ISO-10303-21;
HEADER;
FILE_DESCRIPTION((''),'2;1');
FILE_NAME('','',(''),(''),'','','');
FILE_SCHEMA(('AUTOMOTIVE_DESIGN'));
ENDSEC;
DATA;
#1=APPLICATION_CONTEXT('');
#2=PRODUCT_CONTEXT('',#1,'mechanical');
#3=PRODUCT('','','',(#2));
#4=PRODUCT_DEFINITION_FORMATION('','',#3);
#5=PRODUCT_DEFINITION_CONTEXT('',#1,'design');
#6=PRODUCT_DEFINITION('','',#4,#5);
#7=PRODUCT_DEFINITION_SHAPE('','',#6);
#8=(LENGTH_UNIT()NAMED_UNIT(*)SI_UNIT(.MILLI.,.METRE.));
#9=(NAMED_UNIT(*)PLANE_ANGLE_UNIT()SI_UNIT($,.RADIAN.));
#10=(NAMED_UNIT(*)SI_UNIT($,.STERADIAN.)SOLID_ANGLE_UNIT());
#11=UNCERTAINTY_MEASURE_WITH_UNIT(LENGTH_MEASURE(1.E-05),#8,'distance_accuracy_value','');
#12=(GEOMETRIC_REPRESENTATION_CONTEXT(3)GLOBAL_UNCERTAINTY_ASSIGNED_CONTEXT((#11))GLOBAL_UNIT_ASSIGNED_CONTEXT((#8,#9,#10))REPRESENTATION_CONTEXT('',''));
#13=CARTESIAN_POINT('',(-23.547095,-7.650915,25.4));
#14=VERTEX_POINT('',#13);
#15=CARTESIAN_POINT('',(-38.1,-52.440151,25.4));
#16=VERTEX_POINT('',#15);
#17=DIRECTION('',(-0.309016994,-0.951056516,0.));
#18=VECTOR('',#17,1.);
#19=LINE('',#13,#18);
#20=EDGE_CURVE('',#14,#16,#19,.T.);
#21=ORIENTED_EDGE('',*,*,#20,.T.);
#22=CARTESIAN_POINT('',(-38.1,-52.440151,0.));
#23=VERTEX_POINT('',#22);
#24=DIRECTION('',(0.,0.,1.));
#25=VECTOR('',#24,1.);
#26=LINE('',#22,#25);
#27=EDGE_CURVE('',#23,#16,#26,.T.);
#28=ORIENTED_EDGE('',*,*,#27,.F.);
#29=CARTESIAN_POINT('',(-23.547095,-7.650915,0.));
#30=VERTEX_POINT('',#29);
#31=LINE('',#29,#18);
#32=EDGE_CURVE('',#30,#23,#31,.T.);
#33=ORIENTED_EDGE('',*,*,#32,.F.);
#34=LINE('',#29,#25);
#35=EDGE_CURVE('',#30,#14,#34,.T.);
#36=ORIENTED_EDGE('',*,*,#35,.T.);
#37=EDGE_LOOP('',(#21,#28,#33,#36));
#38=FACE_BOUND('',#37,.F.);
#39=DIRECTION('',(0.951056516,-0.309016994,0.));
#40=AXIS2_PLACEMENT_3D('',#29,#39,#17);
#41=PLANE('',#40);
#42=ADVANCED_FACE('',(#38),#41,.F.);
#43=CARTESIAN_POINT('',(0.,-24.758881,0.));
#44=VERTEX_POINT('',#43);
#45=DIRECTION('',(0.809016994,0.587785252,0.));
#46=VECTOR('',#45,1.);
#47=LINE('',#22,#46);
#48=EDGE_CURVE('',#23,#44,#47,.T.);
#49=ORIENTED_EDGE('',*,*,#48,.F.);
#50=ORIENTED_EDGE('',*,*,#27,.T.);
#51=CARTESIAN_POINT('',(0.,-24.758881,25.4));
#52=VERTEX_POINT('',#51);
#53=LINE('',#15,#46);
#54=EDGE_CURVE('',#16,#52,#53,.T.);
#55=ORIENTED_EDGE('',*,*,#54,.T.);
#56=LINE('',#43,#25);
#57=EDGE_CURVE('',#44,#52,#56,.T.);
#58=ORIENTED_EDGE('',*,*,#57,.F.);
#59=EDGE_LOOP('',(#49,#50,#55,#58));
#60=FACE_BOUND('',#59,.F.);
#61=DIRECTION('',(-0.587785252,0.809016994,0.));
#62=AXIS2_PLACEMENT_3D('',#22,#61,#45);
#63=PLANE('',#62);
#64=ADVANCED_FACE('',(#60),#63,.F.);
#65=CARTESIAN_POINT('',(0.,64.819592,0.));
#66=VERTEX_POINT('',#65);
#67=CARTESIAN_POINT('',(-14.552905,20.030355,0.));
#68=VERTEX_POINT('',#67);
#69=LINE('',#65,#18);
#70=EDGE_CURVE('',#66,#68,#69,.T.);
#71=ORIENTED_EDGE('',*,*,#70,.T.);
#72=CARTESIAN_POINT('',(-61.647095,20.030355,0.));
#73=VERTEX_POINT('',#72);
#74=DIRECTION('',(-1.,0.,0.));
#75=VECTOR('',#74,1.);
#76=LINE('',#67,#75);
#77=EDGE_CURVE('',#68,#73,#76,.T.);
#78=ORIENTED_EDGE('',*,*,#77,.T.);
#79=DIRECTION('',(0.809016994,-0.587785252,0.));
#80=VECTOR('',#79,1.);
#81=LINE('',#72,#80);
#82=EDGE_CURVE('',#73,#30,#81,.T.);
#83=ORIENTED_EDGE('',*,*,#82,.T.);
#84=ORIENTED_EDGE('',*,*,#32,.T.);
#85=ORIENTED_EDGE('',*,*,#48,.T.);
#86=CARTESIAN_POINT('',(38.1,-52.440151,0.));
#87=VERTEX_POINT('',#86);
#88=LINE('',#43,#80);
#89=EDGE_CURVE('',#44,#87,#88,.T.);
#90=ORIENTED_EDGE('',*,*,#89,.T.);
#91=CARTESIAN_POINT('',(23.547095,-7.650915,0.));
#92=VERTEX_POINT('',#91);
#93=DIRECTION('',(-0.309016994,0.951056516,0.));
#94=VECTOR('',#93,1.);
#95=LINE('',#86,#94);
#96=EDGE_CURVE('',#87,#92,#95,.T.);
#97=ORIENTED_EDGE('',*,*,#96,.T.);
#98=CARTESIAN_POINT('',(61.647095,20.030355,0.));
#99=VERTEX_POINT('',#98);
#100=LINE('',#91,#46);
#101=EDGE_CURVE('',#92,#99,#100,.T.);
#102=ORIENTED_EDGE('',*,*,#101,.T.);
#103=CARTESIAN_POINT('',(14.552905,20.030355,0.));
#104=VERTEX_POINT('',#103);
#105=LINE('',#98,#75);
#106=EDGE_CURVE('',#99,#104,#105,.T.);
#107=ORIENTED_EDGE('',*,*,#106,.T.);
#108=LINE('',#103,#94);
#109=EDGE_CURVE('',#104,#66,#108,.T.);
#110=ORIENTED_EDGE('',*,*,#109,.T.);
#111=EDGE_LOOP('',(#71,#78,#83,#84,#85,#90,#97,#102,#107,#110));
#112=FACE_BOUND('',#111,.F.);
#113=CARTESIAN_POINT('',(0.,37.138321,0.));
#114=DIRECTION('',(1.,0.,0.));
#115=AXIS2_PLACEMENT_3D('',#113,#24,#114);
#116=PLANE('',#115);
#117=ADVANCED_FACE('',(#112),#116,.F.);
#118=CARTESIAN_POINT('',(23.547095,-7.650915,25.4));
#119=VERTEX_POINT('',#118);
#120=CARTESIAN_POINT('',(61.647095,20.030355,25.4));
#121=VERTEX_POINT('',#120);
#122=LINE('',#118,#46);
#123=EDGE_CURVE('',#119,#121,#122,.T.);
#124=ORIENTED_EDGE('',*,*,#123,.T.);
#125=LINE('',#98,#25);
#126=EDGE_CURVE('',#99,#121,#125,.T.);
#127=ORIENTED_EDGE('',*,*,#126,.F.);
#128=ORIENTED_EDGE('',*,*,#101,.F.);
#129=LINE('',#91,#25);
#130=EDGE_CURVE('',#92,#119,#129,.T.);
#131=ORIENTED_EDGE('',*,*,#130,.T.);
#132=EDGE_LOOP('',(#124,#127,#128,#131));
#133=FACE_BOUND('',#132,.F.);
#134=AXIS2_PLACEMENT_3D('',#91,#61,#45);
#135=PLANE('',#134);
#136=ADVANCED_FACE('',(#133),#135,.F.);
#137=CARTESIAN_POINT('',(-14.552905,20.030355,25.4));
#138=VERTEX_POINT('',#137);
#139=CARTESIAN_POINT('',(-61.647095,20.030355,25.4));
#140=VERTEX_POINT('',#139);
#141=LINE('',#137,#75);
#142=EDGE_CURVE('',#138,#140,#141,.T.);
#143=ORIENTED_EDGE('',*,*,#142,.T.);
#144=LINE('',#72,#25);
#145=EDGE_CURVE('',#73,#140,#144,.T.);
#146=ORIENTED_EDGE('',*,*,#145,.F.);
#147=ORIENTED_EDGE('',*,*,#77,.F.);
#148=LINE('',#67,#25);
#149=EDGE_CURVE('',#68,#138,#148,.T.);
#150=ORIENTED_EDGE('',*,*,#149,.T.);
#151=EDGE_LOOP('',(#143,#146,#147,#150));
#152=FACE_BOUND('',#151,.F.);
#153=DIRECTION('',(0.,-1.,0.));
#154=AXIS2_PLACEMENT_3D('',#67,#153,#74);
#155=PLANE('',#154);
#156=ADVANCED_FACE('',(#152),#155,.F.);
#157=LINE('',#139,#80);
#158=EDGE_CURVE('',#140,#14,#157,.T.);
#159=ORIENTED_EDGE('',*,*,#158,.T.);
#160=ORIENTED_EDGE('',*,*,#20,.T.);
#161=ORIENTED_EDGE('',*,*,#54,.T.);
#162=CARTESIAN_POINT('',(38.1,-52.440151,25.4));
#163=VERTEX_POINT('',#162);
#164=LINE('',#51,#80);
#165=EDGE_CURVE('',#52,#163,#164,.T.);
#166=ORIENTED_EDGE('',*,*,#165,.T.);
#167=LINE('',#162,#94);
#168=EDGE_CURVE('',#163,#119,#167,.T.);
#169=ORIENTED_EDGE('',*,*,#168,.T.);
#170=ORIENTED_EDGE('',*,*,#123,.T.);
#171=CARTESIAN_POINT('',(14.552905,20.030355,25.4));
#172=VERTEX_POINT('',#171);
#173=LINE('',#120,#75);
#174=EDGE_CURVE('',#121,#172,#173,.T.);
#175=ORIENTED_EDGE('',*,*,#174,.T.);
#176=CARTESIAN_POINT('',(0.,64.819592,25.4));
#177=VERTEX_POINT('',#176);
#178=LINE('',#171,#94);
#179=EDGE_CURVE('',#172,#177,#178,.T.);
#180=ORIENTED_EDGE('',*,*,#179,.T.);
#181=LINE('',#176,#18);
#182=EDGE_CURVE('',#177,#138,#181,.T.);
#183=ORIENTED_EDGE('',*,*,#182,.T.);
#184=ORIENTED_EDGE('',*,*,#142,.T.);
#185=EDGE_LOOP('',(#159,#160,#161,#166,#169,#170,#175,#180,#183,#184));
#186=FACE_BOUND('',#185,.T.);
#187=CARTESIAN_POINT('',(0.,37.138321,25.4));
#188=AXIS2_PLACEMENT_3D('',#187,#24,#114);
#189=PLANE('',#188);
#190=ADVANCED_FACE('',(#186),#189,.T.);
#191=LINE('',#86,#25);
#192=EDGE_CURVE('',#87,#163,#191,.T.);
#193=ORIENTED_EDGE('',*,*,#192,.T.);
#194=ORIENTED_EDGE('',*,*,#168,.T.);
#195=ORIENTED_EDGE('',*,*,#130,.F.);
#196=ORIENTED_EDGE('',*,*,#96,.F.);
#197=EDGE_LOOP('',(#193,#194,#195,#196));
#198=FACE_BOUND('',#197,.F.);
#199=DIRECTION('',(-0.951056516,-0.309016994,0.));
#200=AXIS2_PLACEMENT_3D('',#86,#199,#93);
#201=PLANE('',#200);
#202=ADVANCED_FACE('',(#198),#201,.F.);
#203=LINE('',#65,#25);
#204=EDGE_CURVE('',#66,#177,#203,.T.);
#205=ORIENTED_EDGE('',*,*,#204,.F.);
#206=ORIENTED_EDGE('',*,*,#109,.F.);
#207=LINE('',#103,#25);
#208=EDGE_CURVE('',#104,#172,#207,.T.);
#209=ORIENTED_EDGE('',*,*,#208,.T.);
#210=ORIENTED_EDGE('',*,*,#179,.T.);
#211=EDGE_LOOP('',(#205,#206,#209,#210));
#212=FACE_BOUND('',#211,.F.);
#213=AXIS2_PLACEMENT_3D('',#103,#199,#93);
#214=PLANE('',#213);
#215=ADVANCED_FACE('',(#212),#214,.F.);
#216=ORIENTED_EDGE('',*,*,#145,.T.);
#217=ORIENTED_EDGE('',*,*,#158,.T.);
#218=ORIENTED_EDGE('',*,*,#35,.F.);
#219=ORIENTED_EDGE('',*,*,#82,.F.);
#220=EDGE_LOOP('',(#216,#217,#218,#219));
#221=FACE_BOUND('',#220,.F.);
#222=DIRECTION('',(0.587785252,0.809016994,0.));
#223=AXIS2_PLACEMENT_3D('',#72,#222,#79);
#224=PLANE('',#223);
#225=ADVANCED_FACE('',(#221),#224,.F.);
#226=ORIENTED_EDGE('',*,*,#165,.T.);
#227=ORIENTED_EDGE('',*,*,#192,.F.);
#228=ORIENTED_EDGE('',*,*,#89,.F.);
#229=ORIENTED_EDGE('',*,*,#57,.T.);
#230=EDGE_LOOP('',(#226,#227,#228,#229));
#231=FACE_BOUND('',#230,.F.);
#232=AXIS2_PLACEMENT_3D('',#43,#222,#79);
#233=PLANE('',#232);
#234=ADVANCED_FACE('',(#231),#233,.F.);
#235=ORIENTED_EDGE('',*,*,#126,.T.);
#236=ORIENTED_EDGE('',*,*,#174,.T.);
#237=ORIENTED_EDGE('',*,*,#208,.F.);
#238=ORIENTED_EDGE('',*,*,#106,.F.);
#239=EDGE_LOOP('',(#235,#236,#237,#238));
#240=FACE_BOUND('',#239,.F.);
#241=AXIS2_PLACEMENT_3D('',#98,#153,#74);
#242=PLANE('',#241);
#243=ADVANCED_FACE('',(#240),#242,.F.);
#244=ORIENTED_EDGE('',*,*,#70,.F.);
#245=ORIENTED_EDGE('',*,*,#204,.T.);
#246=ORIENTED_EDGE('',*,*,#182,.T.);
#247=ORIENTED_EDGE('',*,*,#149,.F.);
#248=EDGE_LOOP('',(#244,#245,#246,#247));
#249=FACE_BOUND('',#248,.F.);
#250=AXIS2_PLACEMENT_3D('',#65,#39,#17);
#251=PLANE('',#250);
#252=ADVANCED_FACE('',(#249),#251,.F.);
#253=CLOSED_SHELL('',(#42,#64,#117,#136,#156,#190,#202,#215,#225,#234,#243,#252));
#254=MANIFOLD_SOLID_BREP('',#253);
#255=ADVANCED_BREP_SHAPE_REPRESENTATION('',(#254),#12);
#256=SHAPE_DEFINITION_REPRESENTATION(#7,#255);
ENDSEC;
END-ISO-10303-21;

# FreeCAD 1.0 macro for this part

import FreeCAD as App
import Part
import Sketcher

V = App.Vector
Q = App.Units.Quantity


def add_polygon(sketch, points):
    """Adds a closed chain of lines whose ends are joined by coincident constraints."""
    first, n = sketch.GeometryCount, len(points)
    for a, b in zip(points, points[1:] + points[:1]):
        sketch.addGeometry(Part.LineSegment(App.Vector(*a, 0), App.Vector(*b, 0)), False)
    for i in range(n):
        sketch.addConstraint(Sketcher.Constraint("Coincident", first + i, 2, first + (i + 1) % n, 1))

doc = App.newDocument("Part")
body = doc.addObject("PartDesign::Body", "Body")

sketch1 = body.newObject("Sketcher::SketchObject", "Sketch")
sketch1.AttachmentSupport = (doc.getObject("XY_Plane"), [""])
sketch1.MapMode = "FlatFace"
add_polygon(sketch1, [(15, 20), (0, 65), (-15, 20), (-62, 20), (-24, -8), (-38, -52), (0, -25), (38, -52), (24, -8), (62, 20)])
sketch1.addConstraint(Sketcher.Constraint("Horizontal", 2))
sketch1.addConstraint(Sketcher.Constraint("Horizontal", 9))
sketch1.addConstraint(Sketcher.Constraint("Symmetric", 4, 2, 6, 2, -2))
sketch1.addConstraint(Sketcher.Constraint("Symmetric", 3, 2, 7, 2, -2))
sketch1.addConstraint(Sketcher.Constraint("Symmetric", 2, 2, 8, 2, -2))
sketch1.addConstraint(Sketcher.Constraint("PointOnObject", 0, 2, -2))
sketch1.addConstraint(Sketcher.Constraint("PointOnObject", 5, 2, -2))
sketch1.addConstraint(Sketcher.Constraint("Parallel", 1, 4))
sketch1.addConstraint(Sketcher.Constraint("Parallel", 3, 6))
sketch1.addConstraint(Sketcher.Constraint("Parallel", 0, 7))
sketch1.addConstraint(Sketcher.Constraint("Equal", 1, 3))
sketch1.addConstraint(Sketcher.Constraint("Equal", 3, 4))
sketch1.addConstraint(Sketcher.Constraint("Equal", 4, 5))
sketch1.addConstraint(Sketcher.Constraint("Angle", 0, Q("108 deg")))
sketch1.addConstraint(Sketcher.Constraint("Angle", 3, Q("-36 deg")))
sketch1.addConstraint(Sketcher.Constraint("DistanceX", 4, 2, 6, 2, Q("3 in")))
sketch1.addConstraint(Sketcher.Constraint("DistanceY", -1, 1, 0, 2, Q("64.819592 mm")))
pad1 = body.newObject("PartDesign::Pad", "Pad")
pad1.Profile = sketch1
pad1.Length = Q("1 in")

doc.recompute()
